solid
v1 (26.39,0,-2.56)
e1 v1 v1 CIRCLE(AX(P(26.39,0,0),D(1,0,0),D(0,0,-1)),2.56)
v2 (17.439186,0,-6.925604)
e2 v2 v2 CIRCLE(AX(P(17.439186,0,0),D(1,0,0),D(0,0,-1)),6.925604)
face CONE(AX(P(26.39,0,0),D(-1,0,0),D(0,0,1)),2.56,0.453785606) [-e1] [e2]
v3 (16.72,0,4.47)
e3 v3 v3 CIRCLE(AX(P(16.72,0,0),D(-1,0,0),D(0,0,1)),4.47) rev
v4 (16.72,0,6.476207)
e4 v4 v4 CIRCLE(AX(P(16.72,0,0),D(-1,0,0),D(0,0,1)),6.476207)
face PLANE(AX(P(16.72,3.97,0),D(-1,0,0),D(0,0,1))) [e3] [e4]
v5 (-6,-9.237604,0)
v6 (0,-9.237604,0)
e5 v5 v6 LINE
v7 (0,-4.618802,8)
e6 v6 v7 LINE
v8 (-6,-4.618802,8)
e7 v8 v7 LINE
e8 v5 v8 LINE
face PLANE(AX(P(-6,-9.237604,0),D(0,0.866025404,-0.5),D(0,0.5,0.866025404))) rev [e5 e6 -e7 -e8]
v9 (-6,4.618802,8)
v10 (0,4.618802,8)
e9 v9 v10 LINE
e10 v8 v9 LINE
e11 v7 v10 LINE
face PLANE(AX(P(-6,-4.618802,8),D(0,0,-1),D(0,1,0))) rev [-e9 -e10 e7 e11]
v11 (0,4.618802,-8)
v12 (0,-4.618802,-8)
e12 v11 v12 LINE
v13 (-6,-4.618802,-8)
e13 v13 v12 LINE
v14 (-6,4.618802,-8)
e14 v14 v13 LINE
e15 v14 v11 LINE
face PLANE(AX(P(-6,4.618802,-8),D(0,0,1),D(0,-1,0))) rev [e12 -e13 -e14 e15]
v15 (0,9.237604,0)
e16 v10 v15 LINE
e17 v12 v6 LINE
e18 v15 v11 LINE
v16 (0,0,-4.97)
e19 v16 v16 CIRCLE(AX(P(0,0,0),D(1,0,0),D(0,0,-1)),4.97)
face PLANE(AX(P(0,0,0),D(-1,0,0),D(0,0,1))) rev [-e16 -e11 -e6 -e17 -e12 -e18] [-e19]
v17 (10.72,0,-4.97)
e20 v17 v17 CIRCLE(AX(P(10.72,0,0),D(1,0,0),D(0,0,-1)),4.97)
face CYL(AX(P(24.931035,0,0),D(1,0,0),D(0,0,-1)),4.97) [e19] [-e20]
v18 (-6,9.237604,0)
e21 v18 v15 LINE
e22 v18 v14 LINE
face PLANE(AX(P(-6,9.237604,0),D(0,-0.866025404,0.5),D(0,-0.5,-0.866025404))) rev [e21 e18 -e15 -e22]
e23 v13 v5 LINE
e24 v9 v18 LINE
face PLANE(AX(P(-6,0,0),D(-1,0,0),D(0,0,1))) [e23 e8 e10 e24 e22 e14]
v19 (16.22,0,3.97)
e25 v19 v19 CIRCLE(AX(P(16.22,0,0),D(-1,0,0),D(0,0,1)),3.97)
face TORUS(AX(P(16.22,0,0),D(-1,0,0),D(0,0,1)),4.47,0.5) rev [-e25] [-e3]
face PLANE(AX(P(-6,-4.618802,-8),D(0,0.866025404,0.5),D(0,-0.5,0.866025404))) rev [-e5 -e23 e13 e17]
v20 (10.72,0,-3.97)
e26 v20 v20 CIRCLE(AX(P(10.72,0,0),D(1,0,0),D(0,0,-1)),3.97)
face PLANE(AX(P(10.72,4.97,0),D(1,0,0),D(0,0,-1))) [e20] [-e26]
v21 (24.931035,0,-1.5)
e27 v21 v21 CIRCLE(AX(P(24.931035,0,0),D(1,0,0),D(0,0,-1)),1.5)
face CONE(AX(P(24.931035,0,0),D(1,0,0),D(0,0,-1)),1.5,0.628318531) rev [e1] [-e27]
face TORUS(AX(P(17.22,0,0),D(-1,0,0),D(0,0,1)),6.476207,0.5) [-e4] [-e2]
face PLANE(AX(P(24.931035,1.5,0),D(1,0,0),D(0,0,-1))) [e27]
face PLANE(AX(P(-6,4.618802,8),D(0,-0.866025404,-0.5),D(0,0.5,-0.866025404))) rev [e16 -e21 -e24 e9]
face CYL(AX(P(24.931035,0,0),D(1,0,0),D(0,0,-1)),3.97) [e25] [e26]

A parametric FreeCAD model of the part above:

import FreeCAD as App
import Part
import Sketcher
from FreeCAD import Vector
Q = App.Units.Quantity


def edges_at(feature, points):
    """Names of the edges that pass closest to the given points."""
    edges = feature.Shape.Edges
    near = lambda p: min(range(len(edges)), key=lambda i: edges[i].distToShape(Part.Vertex(*p))[0])
    return sorted({f"Edge{near(p) + 1}" for p in points})


def add_polygon(sketch, points):
    """Adds a closed chain of lines whose ends are joined by coincident constraints."""
    first, n = sketch.GeometryCount, len(points)
    for a, b in zip(points, points[1:] + points[:1]):
        sketch.addGeometry(Part.LineSegment(App.Vector(*a, 0), App.Vector(*b, 0)), False)
    for i in range(n):
        sketch.addConstraint(Sketcher.Constraint("Coincident", first + i, 2, first + (i + 1) % n, 1))

doc = App.newDocument("Part")
params = doc.addObject("Spreadsheet::Sheet", "Params")
for row, (alias, value) in enumerate([
    ("sketch1_width", "6 mm"),
    ("sketch1_height", "1 mm"),
    ("sketch1_height2", "1.5 mm"),
    ("sketch1_width2", "10.72 mm"),
    ("sketch1_height3", "4.97 mm"),
    ("revolution_angle", "360 deg"),
    ("pad1_length", "6 mm"),
    ("fillet_radius", "0.5 mm"),
], start=1):
    params.set(f"A{row}", alias)
    params.set(f"B{row}", "=" + value)
    params.setAlias(f"B{row}", alias)

body = doc.addObject("PartDesign::Body", "Body")

# Sketch on XY plane
sketch1 = doc.addObject("Sketcher::SketchObject", "Sketch")
body.addObject(sketch1)
sketch1.AttachmentSupport = (doc.XY_Plane, [""])
sketch1.MapMode = "FlatFace"
add_polygon(sketch1, [(0, 5), (0, 0), (24.9, 0), (24.9, 1.5), (26.4, 2.6), (16.7, 7.3), (16.7, 4), (10.7, 4), (10.7, 5)])  # lines 0-8
sketch1.addConstraint([
    Sketcher.Constraint("Vertical", 0),
    Sketcher.Constraint("Horizontal", 1),
    Sketcher.Constraint("Vertical", 2),
    Sketcher.Constraint("Vertical", 5),
    Sketcher.Constraint("Horizontal", 6),
    Sketcher.Constraint("Vertical", 7),
    Sketcher.Constraint("Horizontal", 8),
    Sketcher.Constraint("Coincident", 0, 2, -1, 1),
    Sketcher.Constraint("DistanceX", 6, 2, 6, 1, Q("6 mm")),
    Sketcher.Constraint("DistanceY", 7, 1, 7, 2, Q("1 mm")),
    Sketcher.Constraint("Angle", 3, Q("36 deg")),
    Sketcher.Constraint("Angle", 4, Q("154 deg")),
    Sketcher.Constraint("DistanceY", 2, 1, 2, 2, Q("1.5 mm")),
    Sketcher.Constraint("DistanceX", 8, 2, 8, 1, Q("10.72 mm")),
    Sketcher.Constraint("DistanceY", 0, 2, 0, 1, Q("4.97 mm")),
    Sketcher.Constraint("DistanceX", -1, 1, 3, 2, Q("26.39 mm")),
    Sketcher.Constraint("DistanceY", -1, 1, 3, 2, Q("2.56 mm")),
])
sketch1.setExpression("Constraints[17]", "Params.sketch1_width")
sketch1.setExpression("Constraints[18]", "Params.sketch1_height")
sketch1.setExpression("Constraints[21]", "Params.sketch1_height2")
sketch1.setExpression("Constraints[22]", "Params.sketch1_width2")
sketch1.setExpression("Constraints[23]", "Params.sketch1_height3")
revolution = doc.addObject("PartDesign::Revolution", "Revolution")
body.addObject(revolution)
revolution.Profile = sketch1
revolution.ReferenceAxis = (sketch1, ["H_Axis"])
revolution.setExpression("Angle", "Params.revolution_angle")

# Sketch on YZ plane
sketch2 = doc.addObject("Sketcher::SketchObject", "Sketch001")
body.addObject(sketch2)
sketch2.AttachmentSupport = (doc.YZ_Plane, [""])
sketch2.MapMode = "FlatFace"
add_polygon(sketch2, [(9, 0), (5, -8), (-5, -8), (-9, 0), (-5, 8), (5, 8)])  # lines 0-5
sketch2.addConstraint([
    Sketcher.Constraint("Horizontal", 1),
    Sketcher.Constraint("Horizontal", 4),
    Sketcher.Constraint("Symmetric", 0, 2, 3, 2, -1, 1),
    Sketcher.Constraint("Symmetric", 2, 2, 5, 2, -1, 1),
    Sketcher.Constraint("PointOnObject", 2, 2, -1),
    Sketcher.Constraint("Parallel", 2, 5),
    Sketcher.Constraint("Vertical", 1, 2, 3, 2),
    Sketcher.Constraint("Angle", 0, Q("-120 deg")),
    Sketcher.Constraint("DistanceY", 0, 2, -1, 1, Q("8 mm")),
    Sketcher.Constraint("DistanceX", 1, 2, 1, 1, Q("9.237604 mm")),
])
pad1 = doc.addObject("PartDesign::Pad", "Pad")
body.addObject(pad1)
pad1.Profile = sketch2
pad1.setExpression("Length", "Params.pad1_length")
pad1.Reversed = True
doc.recompute()

fillet = doc.addObject("PartDesign::Fillet", "Fillet")
body.addObject(fillet)
fillet.Base = (pad1, edges_at(pad1, [(16.72, 0, 7.276), (16.72, 0, 3.97)]))
fillet.setExpression("Radius", "Params.fillet_radius")

doc.recompute()
